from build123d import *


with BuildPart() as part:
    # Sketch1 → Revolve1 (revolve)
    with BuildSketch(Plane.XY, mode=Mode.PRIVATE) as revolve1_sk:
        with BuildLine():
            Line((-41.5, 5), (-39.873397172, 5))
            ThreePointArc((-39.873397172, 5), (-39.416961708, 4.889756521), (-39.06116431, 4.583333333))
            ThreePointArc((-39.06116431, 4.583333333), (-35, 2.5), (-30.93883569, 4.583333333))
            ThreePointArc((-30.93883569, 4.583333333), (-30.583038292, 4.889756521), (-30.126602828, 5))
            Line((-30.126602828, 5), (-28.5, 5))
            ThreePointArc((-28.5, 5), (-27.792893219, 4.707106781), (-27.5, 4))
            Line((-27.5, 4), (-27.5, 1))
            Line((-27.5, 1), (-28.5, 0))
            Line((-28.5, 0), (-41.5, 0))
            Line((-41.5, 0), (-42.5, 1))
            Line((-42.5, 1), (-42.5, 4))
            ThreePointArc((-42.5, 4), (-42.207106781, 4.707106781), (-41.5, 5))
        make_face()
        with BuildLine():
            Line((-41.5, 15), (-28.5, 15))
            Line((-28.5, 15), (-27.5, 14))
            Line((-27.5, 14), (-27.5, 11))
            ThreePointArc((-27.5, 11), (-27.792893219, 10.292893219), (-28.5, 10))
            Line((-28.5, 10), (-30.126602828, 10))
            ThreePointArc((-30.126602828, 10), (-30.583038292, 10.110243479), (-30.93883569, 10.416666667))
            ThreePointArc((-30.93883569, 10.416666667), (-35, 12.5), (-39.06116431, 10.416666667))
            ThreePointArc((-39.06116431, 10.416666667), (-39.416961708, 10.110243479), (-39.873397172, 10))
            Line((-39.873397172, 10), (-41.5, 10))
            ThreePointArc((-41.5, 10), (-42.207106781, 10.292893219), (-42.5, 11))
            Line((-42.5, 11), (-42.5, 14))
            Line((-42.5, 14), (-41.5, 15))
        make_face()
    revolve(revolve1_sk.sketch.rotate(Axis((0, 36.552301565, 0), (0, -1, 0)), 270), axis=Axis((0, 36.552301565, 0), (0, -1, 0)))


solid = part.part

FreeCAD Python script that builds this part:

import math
import FreeCAD as App
import Part
import Sketcher
from FreeCAD import Vector

doc = App.newDocument("Part")
body = doc.addObject("PartDesign::Body", "Body")
body.AllowCompound = True

# Sketch on XY plane
sketch1 = body.newObject("Sketcher::SketchObject", "Sketch")
sketch1.AttachmentSupport = (doc.getObject("XY_Plane"), [""])
sketch1.MapMode = "FlatFace"
sketch1.addGeometry(Part.LineSegment(Vector(-39.9, 5, 0), Vector(-41.5, 5, 0)), False)
sketch1.addGeometry(Part.ArcOfCircle(Part.Circle(Vector(-41.5, 4, 0), Vector(0, 0, 1), 1), math.radians(90), math.radians(180)), False)
sketch1.addGeometry(Part.LineSegment(Vector(-42.5, 4, 0), Vector(-42.5, 1, 0)), False)
sketch1.addGeometry(Part.LineSegment(Vector(-42.5, 1, 0), Vector(-41.5, 0, 0)), False)
sketch1.addGeometry(Part.LineSegment(Vector(-41.5, 0, 0), Vector(-28.5, 0, 0)), False)
sketch1.addGeometry(Part.LineSegment(Vector(-28.5, 0, 0), Vector(-27.5, 1, 0)), False)
sketch1.addGeometry(Part.LineSegment(Vector(-27.5, 1, 0), Vector(-27.5, 4, 0)), False)
sketch1.addGeometry(Part.ArcOfCircle(Part.Circle(Vector(-28.5, 4, 0), Vector(0, 0, 1), 1), math.radians(0), math.radians(90)), False)
sketch1.addGeometry(Part.LineSegment(Vector(-28.5, 5, 0), Vector(-30.1, 5, 0)), False)
sketch1.addGeometry(Part.ArcOfCircle(Part.Circle(Vector(-30.1, 4, 0), Vector(0, 0, 1), 1), math.radians(90), math.radians(144)), False)
sketch1.addGeometry(Part.ArcOfCircle(Part.Circle(Vector(-35, 7.5, 0), Vector(0, 0, 1), 5), math.radians(-144), math.radians(-36)), False)
sketch1.addGeometry(Part.ArcOfCircle(Part.Circle(Vector(-39.9, 4, 0), Vector(0, 0, 1), 1), math.radians(36), math.radians(90)), False)
sketch1.addGeometry(Part.LineSegment(Vector(-28.5, 15, 0), Vector(-41.5, 15, 0)), False)
sketch1.addGeometry(Part.LineSegment(Vector(-41.5, 15, 0), Vector(-42.5, 14, 0)), False)
sketch1.addGeometry(Part.LineSegment(Vector(-42.5, 14, 0), Vector(-42.5, 11, 0)), False)
sketch1.addGeometry(Part.ArcOfCircle(Part.Circle(Vector(-41.5, 11, 0), Vector(0, 0, 1), 1), math.radians(-180), math.radians(-90)), False)
sketch1.addGeometry(Part.LineSegment(Vector(-41.5, 10, 0), Vector(-39.9, 10, 0)), False)
sketch1.addGeometry(Part.ArcOfCircle(Part.Circle(Vector(-39.9, 11, 0), Vector(0, 0, 1), 1), math.radians(-90), math.radians(-36)), False)
sketch1.addGeometry(Part.ArcOfCircle(Part.Circle(Vector(-35, 7.5, 0), Vector(0, 0, 1), 5), math.radians(36), math.radians(144)), False)
sketch1.addGeometry(Part.ArcOfCircle(Part.Circle(Vector(-30.1, 11, 0), Vector(0, 0, 1), 1), math.radians(-144), math.radians(-90)), False)
sketch1.addGeometry(Part.LineSegment(Vector(-30.1, 10, 0), Vector(-28.5, 10, 0)), False)
sketch1.addGeometry(Part.ArcOfCircle(Part.Circle(Vector(-28.5, 11, 0), Vector(0, 0, 1), 1), math.radians(-90), math.radians(0)), False)
sketch1.addGeometry(Part.LineSegment(Vector(-27.5, 11, 0), Vector(-27.5, 14, 0)), False)
sketch1.addGeometry(Part.LineSegment(Vector(-27.5, 14, 0), Vector(-28.5, 15, 0)), False)
sketch1.addConstraint(Sketcher.Constraint("Tangent", 0, 2, 1, 1))
sketch1.addConstraint(Sketcher.Constraint("Tangent", 1, 2, 2, 1))
sketch1.addConstraint(Sketcher.Constraint("Coincident", 2, 2, 3, 1))
sketch1.addConstraint(Sketcher.Constraint("Coincident", 3, 2, 4, 1))
sketch1.addConstraint(Sketcher.Constraint("Coincident", 4, 2, 5, 1))
sketch1.addConstraint(Sketcher.Constraint("Coincident", 5, 2, 6, 1))
sketch1.addConstraint(Sketcher.Constraint("Tangent", 6, 2, 7, 1))
sketch1.addConstraint(Sketcher.Constraint("Tangent", 7, 2, 8, 1))
sketch1.addConstraint(Sketcher.Constraint("Tangent", 8, 2, 9, 1))
sketch1.addConstraint(Sketcher.Constraint("Tangent", 9, 2, 10, 2))
sketch1.addConstraint(Sketcher.Constraint("Tangent", 10, 1, 11, 1))
sketch1.addConstraint(Sketcher.Constraint("Tangent", 11, 2, 0, 1))
sketch1.addConstraint(Sketcher.Constraint("Coincident", 12, 2, 13, 1))
sketch1.addConstraint(Sketcher.Constraint("Coincident", 13, 2, 14, 1))
sketch1.addConstraint(Sketcher.Constraint("Tangent", 14, 2, 15, 1))
sketch1.addConstraint(Sketcher.Constraint("Tangent", 15, 2, 16, 1))
sketch1.addConstraint(Sketcher.Constraint("Tangent", 16, 2, 17, 1))
sketch1.addConstraint(Sketcher.Constraint("Tangent", 17, 2, 18, 2))
sketch1.addConstraint(Sketcher.Constraint("Tangent", 18, 1, 19, 1))
sketch1.addConstraint(Sketcher.Constraint("Tangent", 19, 2, 20, 1))
sketch1.addConstraint(Sketcher.Constraint("Tangent", 20, 2, 21, 1))
sketch1.addConstraint(Sketcher.Constraint("Tangent", 21, 2, 22, 1))
sketch1.addConstraint(Sketcher.Constraint("Coincident", 22, 2, 23, 1))
sketch1.addConstraint(Sketcher.Constraint("Coincident", 23, 2, 12, 1))
sketch1.addConstraint(Sketcher.Constraint("Horizontal", 0))
sketch1.addConstraint(Sketcher.Constraint("Vertical", 2))
sketch1.addConstraint(Sketcher.Constraint("Horizontal", 4))
sketch1.addConstraint(Sketcher.Constraint("Vertical", 6))
sketch1.addConstraint(Sketcher.Constraint("Horizontal", 8))
sketch1.addConstraint(Sketcher.Constraint("Horizontal", 12))
sketch1.addConstraint(Sketcher.Constraint("Vertical", 14))
sketch1.addConstraint(Sketcher.Constraint("Horizontal", 16))
sketch1.addConstraint(Sketcher.Constraint("Horizontal", 20))
sketch1.addConstraint(Sketcher.Constraint("Vertical", 22))
sketch1.addConstraint(Sketcher.Constraint("Coincident", 18, 3, 10, 3))
sketch1.addConstraint(Sketcher.Constraint("Equal", 1, 7))
sketch1.addConstraint(Sketcher.Constraint("Equal", 7, 9))
sketch1.addConstraint(Sketcher.Constraint("Equal", 9, 11))
sketch1.addConstraint(Sketcher.Constraint("Equal", 11, 15))
sketch1.addConstraint(Sketcher.Constraint("Equal", 15, 17))
sketch1.addConstraint(Sketcher.Constraint("Equal", 10, 18))
sketch1.addConstraint(Sketcher.Constraint("Equal", 17, 19))
sketch1.addConstraint(Sketcher.Constraint("Equal", 19, 21))
sketch1.addConstraint(Sketcher.Constraint("PointOnObject", 3, 2, -1))
sketch1.addConstraint(Sketcher.Constraint("Perpendicular", 3, 5))
sketch1.addConstraint(Sketcher.Constraint("Parallel", 5, 13))
sketch1.addConstraint(Sketcher.Constraint("Perpendicular", 13, 23))
sketch1.addConstraint(Sketcher.Constraint("Horizontal", 1, 3, 7, 3))
sketch1.addConstraint(Sketcher.Constraint("Horizontal", 17, 3, 19, 3))
sketch1.addConstraint(Sketcher.Constraint("Horizontal", 2, 2, 5, 2))
sketch1.addConstraint(Sketcher.Constraint("Horizontal", 13, 2, 22, 2))
sketch1.addConstraint(Sketcher.Constraint("Vertical", 1, 3, 15, 3))
sketch1.addConstraint(Sketcher.Constraint("Vertical", 11, 3, 17, 3))
sketch1.addConstraint(Sketcher.Constraint("Vertical", 7, 3, 21, 3))
sketch1.addConstraint(Sketcher.Constraint("Vertical", 0, 2, 3, 2))
sketch1.addConstraint(Sketcher.Constraint("Vertical", 21, 3, 4, 2))
sketch1.addConstraint(Sketcher.Constraint("Vertical", 3, 2, 12, 2))
sketch1.addConstraint(Sketcher.Constraint("Equal", 0, 8))
sketch1.addConstraint(Sketcher.Constraint("Equal", 6, 14))
sketch1.addConstraint(Sketcher.Constraint("Radius", 1, 1.0))
sketch1.addConstraint(Sketcher.Constraint("Radius", 10, 5.0))
sketch1.addConstraint(Sketcher.Constraint("DistanceX", 4, 1, 4, 2, 13.0))
sketch1.addConstraint(Sketcher.Constraint("DistanceY", 2, 2, 2, 1, 3.0))
sketch1.addConstraint(Sketcher.Constraint("DistanceX", 10, 3, -1, 1, 35.0))
sketch1.addConstraint(Sketcher.Constraint("DistanceY", -1, 1, 15, 3, 11.0))
revolution = body.newObject("PartDesign::Revolution", "Revolution")
revolution.Profile = sketch1
revolution.ReferenceAxis = (sketch1, ["V_Axis"])
revolution.Angle = 360

doc.recompute()
